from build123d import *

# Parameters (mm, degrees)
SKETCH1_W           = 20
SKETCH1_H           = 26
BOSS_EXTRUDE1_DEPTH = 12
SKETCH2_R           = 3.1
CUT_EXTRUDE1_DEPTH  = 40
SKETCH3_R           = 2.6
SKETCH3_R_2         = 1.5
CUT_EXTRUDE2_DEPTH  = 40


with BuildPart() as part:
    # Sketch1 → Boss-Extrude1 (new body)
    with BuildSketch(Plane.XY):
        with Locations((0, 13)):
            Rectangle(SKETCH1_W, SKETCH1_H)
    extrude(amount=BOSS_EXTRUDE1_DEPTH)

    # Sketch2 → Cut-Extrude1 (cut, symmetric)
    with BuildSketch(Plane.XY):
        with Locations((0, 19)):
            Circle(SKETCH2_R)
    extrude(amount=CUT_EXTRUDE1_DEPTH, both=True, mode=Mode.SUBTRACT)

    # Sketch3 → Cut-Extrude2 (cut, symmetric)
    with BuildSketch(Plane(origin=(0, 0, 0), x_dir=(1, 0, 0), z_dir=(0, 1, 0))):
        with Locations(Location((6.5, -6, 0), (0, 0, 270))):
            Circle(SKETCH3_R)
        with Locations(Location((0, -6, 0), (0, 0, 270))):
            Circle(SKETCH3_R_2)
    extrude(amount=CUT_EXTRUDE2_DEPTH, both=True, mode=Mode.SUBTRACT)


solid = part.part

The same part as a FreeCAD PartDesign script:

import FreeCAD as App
import Part
import Sketcher

doc = App.newDocument("Part")
body = doc.addObject("PartDesign::Body", "Body")

# Sketch on XY plane
sketch1 = body.newObject("Sketcher::SketchObject", "Sketch")
sketch1.AttachmentSupport = (doc.getObject("XY_Plane"), [""])
sketch1.MapMode = "FlatFace"
sketch1.addGeometry(Part.LineSegment(App.Vector(-10, 26, 0), App.Vector(-10, 0, 0)), False)
sketch1.addGeometry(Part.LineSegment(App.Vector(-10, 0, 0), App.Vector(10, 0, 0)), False)
sketch1.addGeometry(Part.LineSegment(App.Vector(10, 0, 0), App.Vector(10, 26, 0)), False)
sketch1.addGeometry(Part.LineSegment(App.Vector(10, 26, 0), App.Vector(-10, 26, 0)), False)
sketch1.addConstraint(Sketcher.Constraint("Coincident", 0, 2, 1, 1))
sketch1.addConstraint(Sketcher.Constraint("Coincident", 1, 2, 2, 1))
sketch1.addConstraint(Sketcher.Constraint("Coincident", 2, 2, 3, 1))
sketch1.addConstraint(Sketcher.Constraint("Coincident", 3, 2, 0, 1))
sketch1.addConstraint(Sketcher.Constraint("Vertical", 0))
sketch1.addConstraint(Sketcher.Constraint("Horizontal", 1))
sketch1.addConstraint(Sketcher.Constraint("Vertical", 2))
sketch1.addConstraint(Sketcher.Constraint("Horizontal", 3))
sketch1.addConstraint(Sketcher.Constraint("Symmetric", 0, 2, 1, 2, -1, 1))
sketch1.addConstraint(Sketcher.Constraint("DistanceX", 1, 1, 1, 2, 20.0))
sketch1.addConstraint(Sketcher.Constraint("DistanceY", 0, 2, 0, 1, 26.0))
pad1 = body.newObject("PartDesign::Pad", "Pad")
pad1.Profile = sketch1
pad1.Length = 12

# Sketch on XY plane
sketch2 = body.newObject("Sketcher::SketchObject", "Sketch001")
sketch2.AttachmentSupport = (doc.getObject("XY_Plane"), [""])
sketch2.MapMode = "FlatFace"
sketch2.addGeometry(Part.Circle(App.Vector(0, 19, 0), App.Vector(0, 0, 1), 3.1), False)
sketch2.addConstraint(Sketcher.Constraint("PointOnObject", 0, 3, -2))
sketch2.addConstraint(Sketcher.Constraint("Diameter", 0, 6.2))
sketch2.addConstraint(Sketcher.Constraint("DistanceY", -1, 1, 0, 3, 19.0))
pocket1 = body.newObject("PartDesign::Pocket", "Pocket")
pocket1.Profile = sketch2
pocket1.Length = 80
pocket1.Midplane = True

# Sketch on XZ plane
sketch3 = body.newObject("Sketcher::SketchObject", "Sketch002")
sketch3.AttachmentSupport = (doc.getObject("XZ_Plane"), [""])
sketch3.MapMode = "FlatFace"
sketch3.addGeometry(Part.Circle(App.Vector(6.5, 6, 0), App.Vector(0, 0, 1), 2.6), False)
sketch3.addGeometry(Part.Circle(App.Vector(0, 6, 0), App.Vector(0, 0, 1), 1.5), False)
sketch3.addConstraint(Sketcher.Constraint("PointOnObject", 1, 3, -2))
sketch3.addConstraint(Sketcher.Constraint("Horizontal", 0, 3, 1, 3))
sketch3.addConstraint(Sketcher.Constraint("Diameter", 1, 3.0))
sketch3.addConstraint(Sketcher.Constraint("Diameter", 0, 5.2))
sketch3.addConstraint(Sketcher.Constraint("DistanceY", -1, 1, 0, 3, 6.0))
sketch3.addConstraint(Sketcher.Constraint("DistanceX", -1, 1, 0, 3, 6.5))
pocket2 = body.newObject("PartDesign::Pocket", "Pocket001")
pocket2.Profile = sketch3
pocket2.Length = 80
pocket2.Midplane = True

doc.recompute()
